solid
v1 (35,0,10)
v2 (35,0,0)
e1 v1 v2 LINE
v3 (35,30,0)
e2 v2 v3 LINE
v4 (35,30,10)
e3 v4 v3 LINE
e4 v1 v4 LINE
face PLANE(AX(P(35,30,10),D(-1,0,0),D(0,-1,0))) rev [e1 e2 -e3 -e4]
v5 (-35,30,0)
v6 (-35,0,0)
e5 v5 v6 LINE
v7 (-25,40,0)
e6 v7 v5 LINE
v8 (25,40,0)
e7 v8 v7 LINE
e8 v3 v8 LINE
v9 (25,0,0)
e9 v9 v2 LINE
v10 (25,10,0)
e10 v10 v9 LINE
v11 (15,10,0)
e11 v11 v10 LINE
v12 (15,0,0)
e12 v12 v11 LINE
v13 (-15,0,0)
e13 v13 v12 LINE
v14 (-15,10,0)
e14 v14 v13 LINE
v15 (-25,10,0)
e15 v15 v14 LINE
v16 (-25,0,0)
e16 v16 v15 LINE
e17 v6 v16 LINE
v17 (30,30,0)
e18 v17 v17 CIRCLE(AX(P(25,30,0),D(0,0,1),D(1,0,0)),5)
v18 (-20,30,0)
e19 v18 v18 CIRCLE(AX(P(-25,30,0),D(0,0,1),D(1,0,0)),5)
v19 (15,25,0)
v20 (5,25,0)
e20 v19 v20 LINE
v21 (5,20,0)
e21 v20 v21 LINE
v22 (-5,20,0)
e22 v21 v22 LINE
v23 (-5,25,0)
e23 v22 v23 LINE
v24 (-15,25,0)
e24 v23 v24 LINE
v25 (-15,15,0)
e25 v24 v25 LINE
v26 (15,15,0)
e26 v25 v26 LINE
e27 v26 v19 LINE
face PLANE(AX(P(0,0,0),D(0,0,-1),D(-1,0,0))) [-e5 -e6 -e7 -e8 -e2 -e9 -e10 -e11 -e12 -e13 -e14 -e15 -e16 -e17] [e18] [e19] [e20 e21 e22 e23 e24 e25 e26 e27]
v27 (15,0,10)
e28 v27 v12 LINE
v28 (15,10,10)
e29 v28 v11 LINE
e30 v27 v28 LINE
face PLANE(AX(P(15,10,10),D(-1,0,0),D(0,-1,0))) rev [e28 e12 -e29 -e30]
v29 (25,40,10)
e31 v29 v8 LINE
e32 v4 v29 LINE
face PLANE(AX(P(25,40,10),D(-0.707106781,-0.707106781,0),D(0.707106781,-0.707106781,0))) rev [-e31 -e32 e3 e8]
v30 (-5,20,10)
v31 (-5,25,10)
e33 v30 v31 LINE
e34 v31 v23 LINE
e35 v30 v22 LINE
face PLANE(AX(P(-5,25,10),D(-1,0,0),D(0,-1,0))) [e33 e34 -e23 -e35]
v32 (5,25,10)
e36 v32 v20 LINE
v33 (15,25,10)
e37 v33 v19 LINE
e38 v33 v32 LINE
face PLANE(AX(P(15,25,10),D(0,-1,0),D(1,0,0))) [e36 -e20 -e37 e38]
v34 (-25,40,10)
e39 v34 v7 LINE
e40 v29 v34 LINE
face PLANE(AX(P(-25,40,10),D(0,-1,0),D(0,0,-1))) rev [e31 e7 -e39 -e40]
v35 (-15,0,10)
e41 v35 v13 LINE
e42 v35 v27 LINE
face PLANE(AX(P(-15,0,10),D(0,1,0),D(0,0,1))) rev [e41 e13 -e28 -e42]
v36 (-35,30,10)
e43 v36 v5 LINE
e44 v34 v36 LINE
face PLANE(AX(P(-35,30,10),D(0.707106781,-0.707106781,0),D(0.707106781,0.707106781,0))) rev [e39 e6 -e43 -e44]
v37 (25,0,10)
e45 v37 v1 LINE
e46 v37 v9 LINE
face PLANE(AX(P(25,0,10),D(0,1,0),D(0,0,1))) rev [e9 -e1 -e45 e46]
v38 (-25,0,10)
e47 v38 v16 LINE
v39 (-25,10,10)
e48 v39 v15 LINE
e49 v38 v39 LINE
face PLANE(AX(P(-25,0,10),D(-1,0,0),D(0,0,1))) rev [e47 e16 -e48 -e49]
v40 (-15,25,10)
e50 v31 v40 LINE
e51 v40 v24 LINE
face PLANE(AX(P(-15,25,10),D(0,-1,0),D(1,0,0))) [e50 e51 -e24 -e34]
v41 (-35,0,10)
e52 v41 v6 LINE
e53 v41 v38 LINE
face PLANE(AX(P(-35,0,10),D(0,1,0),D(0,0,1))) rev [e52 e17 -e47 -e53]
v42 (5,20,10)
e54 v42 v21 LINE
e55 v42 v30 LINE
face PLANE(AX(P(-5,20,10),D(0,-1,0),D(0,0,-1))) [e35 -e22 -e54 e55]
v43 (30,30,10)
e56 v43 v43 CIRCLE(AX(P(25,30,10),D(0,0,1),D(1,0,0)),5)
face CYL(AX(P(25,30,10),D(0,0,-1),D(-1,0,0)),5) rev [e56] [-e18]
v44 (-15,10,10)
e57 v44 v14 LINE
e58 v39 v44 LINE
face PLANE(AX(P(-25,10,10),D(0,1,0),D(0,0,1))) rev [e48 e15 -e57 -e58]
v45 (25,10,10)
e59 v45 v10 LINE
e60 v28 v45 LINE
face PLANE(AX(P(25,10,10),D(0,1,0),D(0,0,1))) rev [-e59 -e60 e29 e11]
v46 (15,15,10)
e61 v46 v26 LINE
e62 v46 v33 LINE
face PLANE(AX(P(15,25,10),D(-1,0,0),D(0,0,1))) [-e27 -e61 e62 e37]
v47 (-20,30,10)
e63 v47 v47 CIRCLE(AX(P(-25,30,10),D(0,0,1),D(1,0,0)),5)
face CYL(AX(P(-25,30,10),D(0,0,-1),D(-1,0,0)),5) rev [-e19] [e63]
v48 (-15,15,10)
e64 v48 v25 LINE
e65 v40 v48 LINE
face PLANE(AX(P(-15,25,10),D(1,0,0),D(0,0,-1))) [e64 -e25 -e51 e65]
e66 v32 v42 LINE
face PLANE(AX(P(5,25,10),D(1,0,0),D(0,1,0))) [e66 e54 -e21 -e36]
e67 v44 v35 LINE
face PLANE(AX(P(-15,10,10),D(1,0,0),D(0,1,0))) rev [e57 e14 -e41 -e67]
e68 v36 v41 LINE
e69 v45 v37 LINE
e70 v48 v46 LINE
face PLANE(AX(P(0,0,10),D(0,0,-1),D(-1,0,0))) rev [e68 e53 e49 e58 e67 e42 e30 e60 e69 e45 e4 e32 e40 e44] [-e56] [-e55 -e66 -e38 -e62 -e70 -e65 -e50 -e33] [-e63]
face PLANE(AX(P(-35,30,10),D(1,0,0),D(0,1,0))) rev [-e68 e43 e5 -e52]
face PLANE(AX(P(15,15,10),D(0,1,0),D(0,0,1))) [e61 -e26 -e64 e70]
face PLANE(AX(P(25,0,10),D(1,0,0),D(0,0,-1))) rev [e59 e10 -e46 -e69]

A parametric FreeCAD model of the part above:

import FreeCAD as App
import Part
import Sketcher

V = App.Vector

doc = App.newDocument("Part")
body = doc.addObject("PartDesign::Body", "Body")

sketch1 = body.newObject("Sketcher::SketchObject", "Sketch")
sketch1.AttachmentSupport = (doc.getObject("XY_Plane"), [""])
sketch1.MapMode = "FlatFace"
sketch1.addGeometry(Part.LineSegment(V(-25, 40, 0), V(-35, 30, 0)), False)
sketch1.addGeometry(Part.LineSegment(V(-35, 30, 0), V(-35, 0, 0)), False)
sketch1.addGeometry(Part.LineSegment(V(-35, 0, 0), V(-25, 0, 0)), False)
sketch1.addGeometry(Part.LineSegment(V(-25, 0, 0), V(-25, 10, 0)), False)
sketch1.addGeometry(Part.LineSegment(V(-25, 10, 0), V(-15, 10, 0)), False)
sketch1.addGeometry(Part.LineSegment(V(-15, 10, 0), V(-15, 0, 0)), False)
sketch1.addGeometry(Part.LineSegment(V(-15, 0, 0), V(15, 0, 0)), False)
sketch1.addGeometry(Part.LineSegment(V(15, 0, 0), V(15, 10, 0)), False)
sketch1.addGeometry(Part.LineSegment(V(15, 10, 0), V(25, 10, 0)), False)
sketch1.addGeometry(Part.LineSegment(V(25, 10, 0), V(25, 0, 0)), False)
sketch1.addGeometry(Part.LineSegment(V(25, 0, 0), V(35, 0, 0)), False)
sketch1.addGeometry(Part.LineSegment(V(35, 0, 0), V(35, 30, 0)), False)
sketch1.addGeometry(Part.LineSegment(V(35, 30, 0), V(25, 40, 0)), False)
sketch1.addGeometry(Part.LineSegment(V(25, 40, 0), V(-25, 40, 0)), False)
sketch1.addGeometry(Part.LineSegment(V(15, 15, 0), V(-15, 15, 0)), False)
sketch1.addGeometry(Part.LineSegment(V(-15, 15, 0), V(-15, 25, 0)), False)
sketch1.addGeometry(Part.LineSegment(V(-15, 25, 0), V(-5, 25, 0)), False)
sketch1.addGeometry(Part.LineSegment(V(-5, 25, 0), V(-5, 20, 0)), False)
sketch1.addGeometry(Part.LineSegment(V(-5, 20, 0), V(5, 20, 0)), False)
sketch1.addGeometry(Part.LineSegment(V(5, 20, 0), V(5, 25, 0)), False)
sketch1.addGeometry(Part.LineSegment(V(5, 25, 0), V(15, 25, 0)), False)
sketch1.addGeometry(Part.LineSegment(V(15, 25, 0), V(15, 15, 0)), False)
sketch1.addGeometry(Part.Circle(V(25, 30, 0), V(0, 0, 1), 5), False)
sketch1.addGeometry(Part.Circle(V(-25, 30, 0), V(0, 0, 1), 5), False)
sketch1.addConstraint(Sketcher.Constraint("Coincident", 0, 2, 1, 1))
sketch1.addConstraint(Sketcher.Constraint("Coincident", 1, 2, 2, 1))
sketch1.addConstraint(Sketcher.Constraint("Coincident", 2, 2, 3, 1))
sketch1.addConstraint(Sketcher.Constraint("Coincident", 3, 2, 4, 1))
sketch1.addConstraint(Sketcher.Constraint("Coincident", 4, 2, 5, 1))
sketch1.addConstraint(Sketcher.Constraint("Coincident", 5, 2, 6, 1))
sketch1.addConstraint(Sketcher.Constraint("Coincident", 6, 2, 7, 1))
sketch1.addConstraint(Sketcher.Constraint("Coincident", 7, 2, 8, 1))
sketch1.addConstraint(Sketcher.Constraint("Coincident", 8, 2, 9, 1))
sketch1.addConstraint(Sketcher.Constraint("Coincident", 9, 2, 10, 1))
sketch1.addConstraint(Sketcher.Constraint("Coincident", 10, 2, 11, 1))
sketch1.addConstraint(Sketcher.Constraint("Coincident", 11, 2, 12, 1))
sketch1.addConstraint(Sketcher.Constraint("Coincident", 12, 2, 13, 1))
sketch1.addConstraint(Sketcher.Constraint("Coincident", 13, 2, 0, 1))
sketch1.addConstraint(Sketcher.Constraint("Coincident", 14, 2, 15, 1))
sketch1.addConstraint(Sketcher.Constraint("Coincident", 15, 2, 16, 1))
sketch1.addConstraint(Sketcher.Constraint("Coincident", 16, 2, 17, 1))
sketch1.addConstraint(Sketcher.Constraint("Coincident", 17, 2, 18, 1))
sketch1.addConstraint(Sketcher.Constraint("Coincident", 18, 2, 19, 1))
sketch1.addConstraint(Sketcher.Constraint("Coincident", 19, 2, 20, 1))
sketch1.addConstraint(Sketcher.Constraint("Coincident", 20, 2, 21, 1))
sketch1.addConstraint(Sketcher.Constraint("Coincident", 21, 2, 14, 1))
sketch1.addConstraint(Sketcher.Constraint("Vertical", 1))
sketch1.addConstraint(Sketcher.Constraint("Horizontal", 2))
sketch1.addConstraint(Sketcher.Constraint("Vertical", 3))
sketch1.addConstraint(Sketcher.Constraint("Horizontal", 4))
sketch1.addConstraint(Sketcher.Constraint("Vertical", 5))
sketch1.addConstraint(Sketcher.Constraint("Horizontal", 6))
sketch1.addConstraint(Sketcher.Constraint("Vertical", 7))
sketch1.addConstraint(Sketcher.Constraint("Horizontal", 8))
sketch1.addConstraint(Sketcher.Constraint("Vertical", 9))
sketch1.addConstraint(Sketcher.Constraint("Horizontal", 10))
sketch1.addConstraint(Sketcher.Constraint("Vertical", 11))
sketch1.addConstraint(Sketcher.Constraint("Horizontal", 13))
sketch1.addConstraint(Sketcher.Constraint("Horizontal", 14))
sketch1.addConstraint(Sketcher.Constraint("Vertical", 15))
sketch1.addConstraint(Sketcher.Constraint("Horizontal", 16))
sketch1.addConstraint(Sketcher.Constraint("Vertical", 17))
sketch1.addConstraint(Sketcher.Constraint("Horizontal", 18))
sketch1.addConstraint(Sketcher.Constraint("Vertical", 19))
sketch1.addConstraint(Sketcher.Constraint("Horizontal", 20))
sketch1.addConstraint(Sketcher.Constraint("Vertical", 21))
sketch1.addConstraint(Sketcher.Constraint("Equal", 22, 23))
sketch1.addConstraint(Sketcher.Constraint("Symmetric", 5, 2, 6, 2, -1, 1))
sketch1.addConstraint(Sketcher.Constraint("Symmetric", 2, 2, 9, 2, -1, 1))
sketch1.addConstraint(Sketcher.Constraint("Symmetric", 22, 3, 23, 3, -2))
sketch1.addConstraint(Sketcher.Constraint("Symmetric", 1, 2, 10, 2, -2))
sketch1.addConstraint(Sketcher.Constraint("Symmetric", 16, 2, 19, 2, -2))
sketch1.addConstraint(Sketcher.Constraint("Perpendicular", 0, 12))
sketch1.addConstraint(Sketcher.Constraint("Horizontal", 23, 3, 0, 2))
sketch1.addConstraint(Sketcher.Constraint("Horizontal", 4, 2, 7, 2))
sketch1.addConstraint(Sketcher.Constraint("Horizontal", 0, 2, 11, 2))
sketch1.addConstraint(Sketcher.Constraint("Vertical", 23, 3, 2, 2))
sketch1.addConstraint(Sketcher.Constraint("Vertical", 9, 2, 12, 2))
sketch1.addConstraint(Sketcher.Constraint("Vertical", 3, 2, 13, 2))
sketch1.addConstraint(Sketcher.Constraint("Vertical", 5, 2, 14, 2))
sketch1.addConstraint(Sketcher.Constraint("Vertical", 7, 2, 20, 2))
sketch1.addConstraint(Sketcher.Constraint("Equal", 2, 4))
sketch1.addConstraint(Sketcher.Constraint("Equal", 10, 16))
sketch1.addConstraint(Sketcher.Constraint("Equal", 16, 18))
sketch1.addConstraint(Sketcher.Constraint("Equal", 14, 1))
sketch1.addConstraint(Sketcher.Constraint("Equal", 20, 3))
sketch1.addConstraint(Sketcher.Constraint("Equal", 9, 15))
sketch1.addConstraint(Sketcher.Constraint("Diameter", 22, 10.0))
sketch1.addConstraint(Sketcher.Constraint("DistanceX", 2, 1, 2, 2, 10.0))
sketch1.addConstraint(Sketcher.Constraint("DistanceY", 17, 2, 17, 1, 5.0))
sketch1.addConstraint(Sketcher.Constraint("DistanceY", -1, 1, 14, 2, 15.0))
pad1 = body.newObject("PartDesign::Pad", "Pad")
pad1.Profile = sketch1
pad1.Length = 10

doc.recompute()
